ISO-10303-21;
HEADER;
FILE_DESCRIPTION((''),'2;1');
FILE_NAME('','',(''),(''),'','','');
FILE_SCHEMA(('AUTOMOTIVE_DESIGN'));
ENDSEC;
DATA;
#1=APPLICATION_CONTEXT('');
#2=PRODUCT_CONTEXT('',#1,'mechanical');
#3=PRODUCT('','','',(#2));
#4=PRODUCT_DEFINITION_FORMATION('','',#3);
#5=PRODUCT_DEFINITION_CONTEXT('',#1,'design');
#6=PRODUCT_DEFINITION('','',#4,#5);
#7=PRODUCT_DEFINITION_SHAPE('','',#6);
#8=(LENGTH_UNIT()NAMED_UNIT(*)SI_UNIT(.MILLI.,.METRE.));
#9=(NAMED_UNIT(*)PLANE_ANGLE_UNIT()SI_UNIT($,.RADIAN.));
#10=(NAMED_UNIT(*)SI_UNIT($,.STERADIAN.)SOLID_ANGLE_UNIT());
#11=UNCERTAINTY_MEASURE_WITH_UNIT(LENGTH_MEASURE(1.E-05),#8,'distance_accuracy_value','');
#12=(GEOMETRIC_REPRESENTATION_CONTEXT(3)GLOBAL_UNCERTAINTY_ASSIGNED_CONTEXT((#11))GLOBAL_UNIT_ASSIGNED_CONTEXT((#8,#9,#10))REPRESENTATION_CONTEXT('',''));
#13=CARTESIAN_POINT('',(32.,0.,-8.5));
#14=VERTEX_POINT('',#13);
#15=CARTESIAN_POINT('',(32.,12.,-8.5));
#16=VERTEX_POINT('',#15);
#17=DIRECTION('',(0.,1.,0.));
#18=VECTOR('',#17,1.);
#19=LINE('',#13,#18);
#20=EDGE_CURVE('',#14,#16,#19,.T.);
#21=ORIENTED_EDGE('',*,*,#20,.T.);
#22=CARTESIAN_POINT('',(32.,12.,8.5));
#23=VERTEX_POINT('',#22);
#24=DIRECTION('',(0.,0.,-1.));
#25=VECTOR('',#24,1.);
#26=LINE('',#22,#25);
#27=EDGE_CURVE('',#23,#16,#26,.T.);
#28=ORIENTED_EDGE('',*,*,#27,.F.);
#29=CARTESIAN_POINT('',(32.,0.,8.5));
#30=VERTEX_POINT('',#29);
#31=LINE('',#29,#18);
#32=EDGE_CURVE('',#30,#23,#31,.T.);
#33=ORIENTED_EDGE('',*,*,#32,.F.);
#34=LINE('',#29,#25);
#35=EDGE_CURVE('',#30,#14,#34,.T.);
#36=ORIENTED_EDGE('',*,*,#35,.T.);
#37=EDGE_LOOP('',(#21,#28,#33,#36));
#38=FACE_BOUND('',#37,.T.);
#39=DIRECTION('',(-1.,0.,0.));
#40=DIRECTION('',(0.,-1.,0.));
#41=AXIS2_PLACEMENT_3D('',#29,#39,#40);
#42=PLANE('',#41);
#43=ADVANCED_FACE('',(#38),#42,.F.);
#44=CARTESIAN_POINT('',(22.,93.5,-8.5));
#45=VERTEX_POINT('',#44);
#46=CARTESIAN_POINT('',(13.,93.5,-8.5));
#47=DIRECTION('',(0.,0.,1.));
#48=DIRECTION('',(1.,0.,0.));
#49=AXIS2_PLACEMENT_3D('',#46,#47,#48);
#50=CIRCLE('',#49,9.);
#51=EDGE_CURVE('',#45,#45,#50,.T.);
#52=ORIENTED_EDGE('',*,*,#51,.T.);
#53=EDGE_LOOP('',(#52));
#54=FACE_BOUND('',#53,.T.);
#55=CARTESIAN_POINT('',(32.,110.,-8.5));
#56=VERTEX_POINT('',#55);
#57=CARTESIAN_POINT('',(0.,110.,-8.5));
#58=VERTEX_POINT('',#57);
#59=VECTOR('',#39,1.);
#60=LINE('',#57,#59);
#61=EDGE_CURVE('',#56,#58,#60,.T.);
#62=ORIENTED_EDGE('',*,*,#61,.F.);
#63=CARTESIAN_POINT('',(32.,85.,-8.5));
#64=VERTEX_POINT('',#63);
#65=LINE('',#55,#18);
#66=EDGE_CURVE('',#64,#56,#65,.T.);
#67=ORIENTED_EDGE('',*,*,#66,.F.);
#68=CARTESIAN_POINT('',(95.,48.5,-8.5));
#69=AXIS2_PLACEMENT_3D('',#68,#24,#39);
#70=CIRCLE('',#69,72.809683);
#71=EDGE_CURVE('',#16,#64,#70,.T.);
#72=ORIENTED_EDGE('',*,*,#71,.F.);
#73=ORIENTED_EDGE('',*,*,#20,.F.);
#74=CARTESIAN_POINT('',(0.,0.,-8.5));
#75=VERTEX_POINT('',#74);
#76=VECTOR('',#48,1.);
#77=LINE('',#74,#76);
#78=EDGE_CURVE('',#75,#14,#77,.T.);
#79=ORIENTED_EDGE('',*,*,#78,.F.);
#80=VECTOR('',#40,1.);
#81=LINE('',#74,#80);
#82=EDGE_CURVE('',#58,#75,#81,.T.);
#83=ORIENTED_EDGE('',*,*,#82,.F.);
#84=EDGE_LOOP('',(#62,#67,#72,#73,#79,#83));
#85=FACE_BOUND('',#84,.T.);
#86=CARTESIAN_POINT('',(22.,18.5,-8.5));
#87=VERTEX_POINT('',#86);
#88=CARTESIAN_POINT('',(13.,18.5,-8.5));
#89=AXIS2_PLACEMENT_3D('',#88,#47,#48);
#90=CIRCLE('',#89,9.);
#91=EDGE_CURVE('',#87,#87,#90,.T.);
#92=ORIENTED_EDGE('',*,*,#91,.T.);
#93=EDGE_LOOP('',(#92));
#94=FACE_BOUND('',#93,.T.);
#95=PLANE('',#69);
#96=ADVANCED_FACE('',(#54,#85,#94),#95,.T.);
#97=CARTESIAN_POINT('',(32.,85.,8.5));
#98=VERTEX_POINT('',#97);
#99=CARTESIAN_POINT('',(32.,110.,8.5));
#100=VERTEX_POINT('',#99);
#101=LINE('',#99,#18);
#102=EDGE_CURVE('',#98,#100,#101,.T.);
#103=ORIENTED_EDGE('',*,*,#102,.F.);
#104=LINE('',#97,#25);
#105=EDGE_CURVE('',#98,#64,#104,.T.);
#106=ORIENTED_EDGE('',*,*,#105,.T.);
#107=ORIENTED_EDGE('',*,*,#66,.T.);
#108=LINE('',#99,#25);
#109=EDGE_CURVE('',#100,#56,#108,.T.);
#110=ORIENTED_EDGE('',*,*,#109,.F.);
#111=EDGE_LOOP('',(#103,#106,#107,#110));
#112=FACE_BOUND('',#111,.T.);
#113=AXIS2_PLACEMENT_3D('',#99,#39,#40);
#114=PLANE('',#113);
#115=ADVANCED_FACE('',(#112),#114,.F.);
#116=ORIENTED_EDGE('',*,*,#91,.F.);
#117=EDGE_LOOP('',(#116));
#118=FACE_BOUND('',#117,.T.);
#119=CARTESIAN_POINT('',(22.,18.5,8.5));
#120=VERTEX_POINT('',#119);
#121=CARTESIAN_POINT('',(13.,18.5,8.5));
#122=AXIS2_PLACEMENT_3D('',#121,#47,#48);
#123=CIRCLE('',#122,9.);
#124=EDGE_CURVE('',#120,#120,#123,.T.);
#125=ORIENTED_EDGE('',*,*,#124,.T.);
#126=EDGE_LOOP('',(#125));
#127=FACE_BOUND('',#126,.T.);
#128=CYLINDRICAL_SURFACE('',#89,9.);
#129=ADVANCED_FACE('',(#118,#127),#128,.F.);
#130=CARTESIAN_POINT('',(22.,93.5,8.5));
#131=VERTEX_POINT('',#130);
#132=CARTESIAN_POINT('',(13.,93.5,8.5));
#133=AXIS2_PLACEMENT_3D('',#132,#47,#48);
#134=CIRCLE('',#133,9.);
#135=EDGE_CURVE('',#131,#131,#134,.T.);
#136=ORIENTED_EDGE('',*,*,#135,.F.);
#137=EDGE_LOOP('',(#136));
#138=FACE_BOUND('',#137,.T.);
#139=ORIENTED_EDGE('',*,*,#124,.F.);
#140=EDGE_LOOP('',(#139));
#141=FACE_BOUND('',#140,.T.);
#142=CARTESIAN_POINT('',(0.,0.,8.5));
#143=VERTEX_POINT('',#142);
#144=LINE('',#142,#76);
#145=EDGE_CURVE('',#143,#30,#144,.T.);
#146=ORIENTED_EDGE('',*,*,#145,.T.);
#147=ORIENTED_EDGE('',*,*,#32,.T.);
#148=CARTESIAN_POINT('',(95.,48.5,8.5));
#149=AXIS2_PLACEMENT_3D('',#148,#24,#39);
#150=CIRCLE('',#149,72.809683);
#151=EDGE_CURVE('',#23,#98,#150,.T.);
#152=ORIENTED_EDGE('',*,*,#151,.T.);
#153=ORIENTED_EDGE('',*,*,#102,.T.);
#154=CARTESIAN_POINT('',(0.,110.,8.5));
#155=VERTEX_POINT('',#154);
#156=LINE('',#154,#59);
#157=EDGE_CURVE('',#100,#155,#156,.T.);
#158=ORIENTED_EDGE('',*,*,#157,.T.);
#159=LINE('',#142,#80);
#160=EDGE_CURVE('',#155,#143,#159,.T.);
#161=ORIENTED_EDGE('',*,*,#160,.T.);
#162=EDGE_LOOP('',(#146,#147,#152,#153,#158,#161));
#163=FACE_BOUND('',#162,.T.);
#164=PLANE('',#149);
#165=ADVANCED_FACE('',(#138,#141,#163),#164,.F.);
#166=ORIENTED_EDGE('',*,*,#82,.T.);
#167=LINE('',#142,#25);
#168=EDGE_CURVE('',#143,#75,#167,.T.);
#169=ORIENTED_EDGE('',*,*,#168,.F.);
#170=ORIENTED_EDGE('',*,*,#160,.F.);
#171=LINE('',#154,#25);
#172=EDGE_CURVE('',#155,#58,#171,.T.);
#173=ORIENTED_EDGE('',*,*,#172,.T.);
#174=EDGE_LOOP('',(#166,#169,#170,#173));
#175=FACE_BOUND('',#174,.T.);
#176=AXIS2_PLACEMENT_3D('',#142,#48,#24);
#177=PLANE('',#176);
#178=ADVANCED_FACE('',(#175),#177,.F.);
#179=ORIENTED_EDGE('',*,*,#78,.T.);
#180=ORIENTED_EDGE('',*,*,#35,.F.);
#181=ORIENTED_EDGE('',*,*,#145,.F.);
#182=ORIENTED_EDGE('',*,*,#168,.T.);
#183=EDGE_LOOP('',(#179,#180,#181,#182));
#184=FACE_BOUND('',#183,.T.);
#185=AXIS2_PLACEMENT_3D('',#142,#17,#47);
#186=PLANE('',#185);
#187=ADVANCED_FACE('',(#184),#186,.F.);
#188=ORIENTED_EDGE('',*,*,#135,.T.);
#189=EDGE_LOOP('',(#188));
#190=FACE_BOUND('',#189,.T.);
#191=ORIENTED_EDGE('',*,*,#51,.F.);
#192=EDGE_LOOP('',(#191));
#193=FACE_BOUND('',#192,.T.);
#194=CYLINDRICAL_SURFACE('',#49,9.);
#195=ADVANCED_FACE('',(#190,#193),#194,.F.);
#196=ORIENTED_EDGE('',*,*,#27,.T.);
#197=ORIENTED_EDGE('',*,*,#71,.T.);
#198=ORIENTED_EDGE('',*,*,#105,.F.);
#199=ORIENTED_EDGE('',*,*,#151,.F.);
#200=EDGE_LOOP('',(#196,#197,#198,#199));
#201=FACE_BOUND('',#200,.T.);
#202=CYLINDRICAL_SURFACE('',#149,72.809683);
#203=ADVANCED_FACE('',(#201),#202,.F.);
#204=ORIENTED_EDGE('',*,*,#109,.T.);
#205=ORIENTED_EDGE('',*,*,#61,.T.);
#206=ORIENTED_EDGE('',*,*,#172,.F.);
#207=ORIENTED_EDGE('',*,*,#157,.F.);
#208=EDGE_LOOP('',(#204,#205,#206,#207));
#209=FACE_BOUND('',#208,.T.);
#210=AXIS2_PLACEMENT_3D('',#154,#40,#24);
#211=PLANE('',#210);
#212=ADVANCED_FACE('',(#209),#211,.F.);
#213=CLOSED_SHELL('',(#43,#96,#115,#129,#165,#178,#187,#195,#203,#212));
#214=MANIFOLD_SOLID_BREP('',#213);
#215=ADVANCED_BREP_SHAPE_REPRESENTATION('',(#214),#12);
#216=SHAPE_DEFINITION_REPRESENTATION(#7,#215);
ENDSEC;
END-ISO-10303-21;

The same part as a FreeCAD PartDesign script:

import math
import FreeCAD as App
import Part
import Sketcher
Q = App.Units.Quantity

doc = App.newDocument("Part")
body = doc.addObject("PartDesign::Body", "Body")

sketch1 = body.newObject("Sketcher::SketchObject", "Sketch")
sketch1.AttachmentSupport = (doc.getObject("XY_Plane"), [""])
sketch1.MapMode = "FlatFace"
sketch1.addGeometry([
    Part.LineSegment(App.Vector(0, 110, 0), App.Vector(0, 0, 0)),
    Part.LineSegment(App.Vector(0, 0, 0), App.Vector(32, 0, 0)),
    Part.LineSegment(App.Vector(32, 0, 0), App.Vector(32, 12, 0)),
    Part.ArcOfCircle(Part.Circle(App.Vector(95, 48, 0), App.Vector(0, 0, 1), 73), math.radians(150), math.radians(210)),
    Part.LineSegment(App.Vector(32, 85, 0), App.Vector(32, 110, 0)),
    Part.LineSegment(App.Vector(32, 110, 0), App.Vector(0, 110, 0)),
], False)
sketch1.addConstraint([
    Sketcher.Constraint("Coincident", 0, 2, 1, 1),
    Sketcher.Constraint("Coincident", 1, 2, 2, 1),
    Sketcher.Constraint("Coincident", 2, 2, 3, 2),
    Sketcher.Constraint("Coincident", 3, 1, 4, 1),
    Sketcher.Constraint("Coincident", 4, 2, 5, 1),
    Sketcher.Constraint("Coincident", 5, 2, 0, 1),
    Sketcher.Constraint("Vertical", 0),
    Sketcher.Constraint("Horizontal", 1),
    Sketcher.Constraint("Vertical", 2),
    Sketcher.Constraint("Vertical", 4),
    Sketcher.Constraint("Horizontal", 5),
    Sketcher.Constraint("Coincident", 0, 2, -1, 1),
    Sketcher.Constraint("Vertical", 2, 2, 3, 1),
    Sketcher.Constraint("DistanceX", 1, 1, 1, 2, Q("32 mm")),
    Sketcher.Constraint("DistanceY", 0, 2, 0, 1, Q("110 mm")),
    Sketcher.Constraint("DistanceY", 2, 1, 2, 2, Q("12 mm")),
    Sketcher.Constraint("DistanceY", 4, 1, 4, 2, Q("25 mm")),
    Sketcher.Constraint("DistanceX", -1, 1, 3, 3, Q("95 mm")),
])
pad1 = body.newObject("PartDesign::Pad", "Pad")
pad1.Profile = sketch1
pad1.Length = 17
pad1.Midplane = True

sketch2 = body.newObject("Sketcher::SketchObject", "Sketch001")
sketch2.AttachmentSupport = (doc.getObject("XY_Plane"), [""])
sketch2.MapMode = "FlatFace"
sketch2.AttachmentOffset = App.Placement(App.Vector(0, 0, 8.5), App.Rotation())
sketch2.addGeometry([
    Part.Circle(App.Vector(13, 94, 0), App.Vector(0, 0, 1), 9),
    Part.Circle(App.Vector(13, 18, 0), App.Vector(0, 0, 1), 9),
], False)
sketch2.addConstraint([
    Sketcher.Constraint("Equal", 0, 1),
    Sketcher.Constraint("Vertical", 0, 3, 1, 3),
    Sketcher.Constraint("Diameter", 0, Q("18 mm")),
    Sketcher.Constraint("DistanceX", -1, 1, 0, 3, Q("13 mm")),
    Sketcher.Constraint("DistanceY", 1, 3, 0, 3, Q("75 mm")),
    Sketcher.Constraint("DistanceY", -1, 1, 0, 3, Q("93.5 mm")),
])
pocket1 = body.newObject("PartDesign::Pocket", "Pocket")
pocket1.Profile = sketch2
pocket1.Type = "ThroughAll"

doc.recompute()
